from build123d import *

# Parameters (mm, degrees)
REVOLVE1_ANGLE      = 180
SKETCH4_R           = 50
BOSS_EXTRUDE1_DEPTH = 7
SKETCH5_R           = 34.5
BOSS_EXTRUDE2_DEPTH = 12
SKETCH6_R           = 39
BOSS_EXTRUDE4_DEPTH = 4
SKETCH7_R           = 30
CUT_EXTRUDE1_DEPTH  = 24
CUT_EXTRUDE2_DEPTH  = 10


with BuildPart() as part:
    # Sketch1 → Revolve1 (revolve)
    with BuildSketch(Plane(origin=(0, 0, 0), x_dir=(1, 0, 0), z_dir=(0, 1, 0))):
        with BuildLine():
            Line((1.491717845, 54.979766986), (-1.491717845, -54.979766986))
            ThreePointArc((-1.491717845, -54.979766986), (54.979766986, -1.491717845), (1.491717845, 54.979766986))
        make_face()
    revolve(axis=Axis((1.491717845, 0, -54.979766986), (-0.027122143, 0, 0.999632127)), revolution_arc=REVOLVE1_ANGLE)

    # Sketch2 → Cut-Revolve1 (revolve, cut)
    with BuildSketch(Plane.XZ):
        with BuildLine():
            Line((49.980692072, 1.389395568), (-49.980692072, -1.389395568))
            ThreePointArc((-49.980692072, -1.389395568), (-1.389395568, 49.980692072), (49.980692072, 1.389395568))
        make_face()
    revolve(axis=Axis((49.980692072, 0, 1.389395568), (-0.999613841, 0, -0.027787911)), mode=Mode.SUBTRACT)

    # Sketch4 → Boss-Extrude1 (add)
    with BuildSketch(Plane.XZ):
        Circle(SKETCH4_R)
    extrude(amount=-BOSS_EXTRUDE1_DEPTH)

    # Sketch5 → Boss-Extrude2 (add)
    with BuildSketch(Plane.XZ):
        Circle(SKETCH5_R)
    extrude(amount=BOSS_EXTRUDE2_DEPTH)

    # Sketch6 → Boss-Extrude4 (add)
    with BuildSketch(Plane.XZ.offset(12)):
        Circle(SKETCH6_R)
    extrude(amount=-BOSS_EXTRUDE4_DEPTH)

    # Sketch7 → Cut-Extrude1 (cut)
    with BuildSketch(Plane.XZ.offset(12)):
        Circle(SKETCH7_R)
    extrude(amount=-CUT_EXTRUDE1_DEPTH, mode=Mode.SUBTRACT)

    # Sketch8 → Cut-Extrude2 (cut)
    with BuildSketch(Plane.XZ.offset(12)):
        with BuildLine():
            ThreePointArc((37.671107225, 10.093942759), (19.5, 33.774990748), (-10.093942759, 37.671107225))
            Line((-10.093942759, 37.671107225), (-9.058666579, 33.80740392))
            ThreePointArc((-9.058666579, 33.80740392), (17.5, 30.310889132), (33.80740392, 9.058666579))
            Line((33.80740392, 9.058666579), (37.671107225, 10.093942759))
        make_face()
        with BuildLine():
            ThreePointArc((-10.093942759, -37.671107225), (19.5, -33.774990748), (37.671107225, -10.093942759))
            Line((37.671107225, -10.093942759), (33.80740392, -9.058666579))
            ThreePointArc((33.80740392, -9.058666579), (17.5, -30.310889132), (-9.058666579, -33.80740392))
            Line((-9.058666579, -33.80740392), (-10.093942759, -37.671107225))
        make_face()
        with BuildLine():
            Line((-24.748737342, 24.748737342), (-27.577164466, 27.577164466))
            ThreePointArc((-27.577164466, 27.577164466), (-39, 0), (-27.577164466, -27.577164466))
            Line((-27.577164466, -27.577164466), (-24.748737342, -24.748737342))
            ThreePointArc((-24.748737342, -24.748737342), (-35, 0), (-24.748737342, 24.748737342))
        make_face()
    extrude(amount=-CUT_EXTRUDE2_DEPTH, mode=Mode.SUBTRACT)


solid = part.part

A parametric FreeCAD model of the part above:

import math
import FreeCAD as App
import Part
import Sketcher
from FreeCAD import Vector
Q = App.Units.Quantity

doc = App.newDocument("Part")
body = doc.addObject("PartDesign::Body", "Body")

# Sketch on XZ plane
sketch1 = body.newObject("Sketcher::SketchObject", "Sketch")
sketch1.AttachmentSupport = (doc.getObject("XZ_Plane"), [""])
sketch1.MapMode = "FlatFace"
sketch1.addGeometry([
    Part.LineSegment(Vector(1.491718, -54.979767, 0), Vector(-1.491718, 54.979767, 0)),
    Part.ArcOfCircle(Part.Circle(Vector(0, 0, 0), Vector(0, 0, 1), 55), math.radians(-88.445825), math.radians(91.554175)),
], False)
sketch1.addGeometry(Part.LineSegment(Vector(1.491718, -54.979767, 0), Vector(-1.491718, 54.979767, 0)), True)  # axis
sketch1.addConstraint([
    Sketcher.Constraint("Coincident", 0, 1, 1, 1),
    Sketcher.Constraint("Coincident", 1, 2, 0, 2),
    Sketcher.Constraint("Coincident", 1, 3, -1, 1),
    Sketcher.Constraint("Coincident", 2, 1, 0, 1),
    Sketcher.Constraint("Coincident", 2, 2, 1, 2),
    Sketcher.Constraint("Radius", 1, 55.0),
    Sketcher.Constraint("DistanceX", -1, 1, 0, 1, 1.491718),
    Sketcher.Constraint("DistanceX", 1, 2, -1, 1, 1.491718),
])
revolution = body.newObject("PartDesign::Revolution", "Revolution")
revolution.Profile = sketch1
revolution.ReferenceAxis = (sketch1, ["Axis0"])
revolution.Angle = 180

# Sketch on XZ plane
sketch2 = body.newObject("Sketcher::SketchObject", "Sketch001")
sketch2.AttachmentSupport = (doc.getObject("XZ_Plane"), [""])
sketch2.MapMode = "FlatFace"
sketch2.addGeometry([
    Part.LineSegment(Vector(-49.980692, -1.389396, 0), Vector(49.980692, 1.389396, 0)),
    Part.ArcOfCircle(Part.Circle(Vector(0, 0, 0), Vector(0, 0, 1), 50), math.radians(1.592335), math.radians(181.592335)),
], False)
sketch2.addGeometry(Part.LineSegment(Vector(49.980692, 1.389396, 0), Vector(-49.980692, -1.389396, 0)), True)  # axis
sketch2.addConstraint([
    Sketcher.Constraint("Coincident", 0, 1, 1, 2),
    Sketcher.Constraint("Coincident", 1, 1, 0, 2),
    Sketcher.Constraint("Coincident", 1, 3, -1, 1),
    Sketcher.Constraint("Coincident", 2, 1, 1, 1),
    Sketcher.Constraint("Coincident", 2, 2, 0, 1),
    Sketcher.Constraint("Radius", 1, 50.0),
    Sketcher.Constraint("DistanceX", 2, 2, -1, 1, 49.980692),
    Sketcher.Constraint("DistanceY", 0, 1, 1, 1, 2.778791),
])
groove = body.newObject("PartDesign::Groove", "Groove")
groove.Profile = sketch2
groove.ReferenceAxis = (sketch2, ["Axis0"])
groove.Angle = 360

# Sketch on XZ plane
sketch3 = body.newObject("Sketcher::SketchObject", "Sketch002")
sketch3.AttachmentSupport = (doc.getObject("XZ_Plane"), [""])
sketch3.MapMode = "FlatFace"
sketch3.addGeometry(Part.Circle(Vector(0, 0, 0), Vector(0, 0, 1), 50), False)
sketch3.addConstraint([
    Sketcher.Constraint("Coincident", 0, 3, -1, 1),
    Sketcher.Constraint("Diameter", 0, 100.0),
])
pad1 = body.newObject("PartDesign::Pad", "Pad")
pad1.Profile = sketch3
pad1.Length = 7
pad1.Reversed = True

# Sketch on XZ plane
sketch4 = body.newObject("Sketcher::SketchObject", "Sketch003")
sketch4.AttachmentSupport = (doc.getObject("XZ_Plane"), [""])
sketch4.MapMode = "FlatFace"
sketch4.addGeometry(Part.Circle(Vector(0, 0, 0), Vector(0, 0, 1), 34.5), False)
sketch4.addConstraint([
    Sketcher.Constraint("Coincident", 0, 3, -1, 1),
    Sketcher.Constraint("Diameter", 0, 69.0),
])
pad2 = body.newObject("PartDesign::Pad", "Pad001")
pad2.Profile = sketch4
pad2.Length = 12

# Sketch on XZ plane
sketch5 = body.newObject("Sketcher::SketchObject", "Sketch004")
sketch5.AttachmentSupport = (doc.getObject("XZ_Plane"), [""])
sketch5.MapMode = "FlatFace"
sketch5.AttachmentOffset = App.Placement(Vector(0, 0, 12), App.Rotation())
sketch5.addGeometry(Part.Circle(Vector(0, 0, 0), Vector(0, 0, 1), 39), False)
sketch5.addConstraint([
    Sketcher.Constraint("Coincident", 0, 3, -1, 1),
    Sketcher.Constraint("Diameter", 0, 78.0),
])
pad3 = body.newObject("PartDesign::Pad", "Pad002")
pad3.Profile = sketch5
pad3.Length = 4
pad3.Reversed = True

# Sketch on XZ plane
sketch6 = body.newObject("Sketcher::SketchObject", "Sketch005")
sketch6.AttachmentSupport = (doc.getObject("XZ_Plane"), [""])
sketch6.MapMode = "FlatFace"
sketch6.AttachmentOffset = App.Placement(Vector(0, 0, 12), App.Rotation())
sketch6.addGeometry(Part.Circle(Vector(0, 0, 0), Vector(0, 0, 1), 30), False)
sketch6.addConstraint([
    Sketcher.Constraint("Coincident", 0, 3, -1, 1),
    Sketcher.Constraint("Diameter", 0, 60.0),
])
pocket1 = body.newObject("PartDesign::Pocket", "Pocket")
pocket1.Profile = sketch6
pocket1.Length = 24

# Sketch on XZ plane
sketch7 = body.newObject("Sketcher::SketchObject", "Sketch006")
sketch7.AttachmentSupport = (doc.getObject("XZ_Plane"), [""])
sketch7.MapMode = "FlatFace"
sketch7.AttachmentOffset = App.Placement(Vector(0, 0, 12), App.Rotation())
sketch7.addGeometry([
    Part.ArcOfCircle(Part.Circle(Vector(0, 0, 0), Vector(0, 0, 1), 39), math.radians(15), math.radians(105)),  # 0
    Part.LineSegment(Vector(-10.093943, 37.671107, 0), Vector(-9.058667, 33.807404, 0)),  # 1
    Part.ArcOfCircle(Part.Circle(Vector(0, 0, 0), Vector(0, 0, 1), 35), math.radians(15), math.radians(105)),  # 2
    Part.LineSegment(Vector(33.807404, 9.058667, 0), Vector(37.671107, 10.093943, 0)),  # 3
    Part.ArcOfCircle(Part.Circle(Vector(0, 0, 0), Vector(0, 0, 1), 39), math.radians(-105), math.radians(-15)),  # 4
    Part.LineSegment(Vector(37.671107, -10.093943, 0), Vector(33.807404, -9.058667, 0)),  # 5
    Part.ArcOfCircle(Part.Circle(Vector(0, 0, 0), Vector(0, 0, 1), 35), math.radians(-105), math.radians(-15)),  # 6
    Part.LineSegment(Vector(-9.058667, -33.807404, 0), Vector(-10.093943, -37.671107, 0)),  # 7
    Part.LineSegment(Vector(-24.748737, 24.748737, 0), Vector(-27.577164, 27.577164, 0)),  # 8
    Part.ArcOfCircle(Part.Circle(Vector(0, 0, 0), Vector(0, 0, 1), 39), math.radians(135), math.radians(225)),  # 9
    Part.LineSegment(Vector(-27.577164, -27.577164, 0), Vector(-24.748737, -24.748737, 0)),  # 10
    Part.ArcOfCircle(Part.Circle(Vector(0, 0, 0), Vector(0, 0, 1), 35), math.radians(135), math.radians(225)),  # 11
], False)
sketch7.addConstraint([
    Sketcher.Constraint("Coincident", 0, 2, 1, 1),
    Sketcher.Constraint("Coincident", 1, 2, 2, 2),
    Sketcher.Constraint("Coincident", 2, 1, 3, 1),
    Sketcher.Constraint("Coincident", 3, 2, 0, 1),
    Sketcher.Constraint("Coincident", 4, 2, 5, 1),
    Sketcher.Constraint("Coincident", 5, 2, 6, 2),
    Sketcher.Constraint("Coincident", 6, 1, 7, 1),
    Sketcher.Constraint("Coincident", 7, 2, 4, 1),
    Sketcher.Constraint("Coincident", 8, 2, 9, 1),
    Sketcher.Constraint("Coincident", 9, 2, 10, 1),
    Sketcher.Constraint("Coincident", 10, 2, 11, 2),
    Sketcher.Constraint("Coincident", 11, 1, 8, 1),
    Sketcher.Constraint("Coincident", 0, 3, -1, 1),
    Sketcher.Constraint("Coincident", 2, 3, -1, 1),
    Sketcher.Constraint("Coincident", 4, 3, -1, 1),
    Sketcher.Constraint("Coincident", 6, 3, -1, 1),
    Sketcher.Constraint("Coincident", 9, 3, -1, 1),
    Sketcher.Constraint("Coincident", 11, 3, -1, 1),
    Sketcher.Constraint("Equal", 0, 4),
    Sketcher.Constraint("Equal", 2, 6),
    Sketcher.Constraint("Equal", 4, 9),
    Sketcher.Constraint("Equal", 6, 11),
    Sketcher.Constraint("Perpendicular", 1, 3),
    Sketcher.Constraint("Perpendicular", 5, 7),
    Sketcher.Constraint("Perpendicular", 8, 10),
    Sketcher.Constraint("Vertical", 3, 2, 4, 2),
    Sketcher.Constraint("Vertical", 2, 1, 5, 2),
    Sketcher.Constraint("Vertical", 1, 2, 6, 1),
    Sketcher.Constraint("Vertical", 8, 2, 9, 2),
    Sketcher.Constraint("Vertical", 10, 2, 11, 1),
    Sketcher.Constraint("Radius", 0, 39.0),
    Sketcher.Constraint("Radius", 2, 35.0),
    Sketcher.Constraint("Angle", 1, Q("-75 deg")),
    Sketcher.Constraint("DistanceY", 4, 2, 2, 1, 19.152609),
    Sketcher.Constraint("DistanceY", 8, 2, 1, 2, 6.230239),
    Sketcher.Constraint("DistanceX", 8, 2, 0, 2, 17.483222),
])
pocket2 = body.newObject("PartDesign::Pocket", "Pocket001")
pocket2.Profile = sketch7
pocket2.Length = 10

doc.recompute()
